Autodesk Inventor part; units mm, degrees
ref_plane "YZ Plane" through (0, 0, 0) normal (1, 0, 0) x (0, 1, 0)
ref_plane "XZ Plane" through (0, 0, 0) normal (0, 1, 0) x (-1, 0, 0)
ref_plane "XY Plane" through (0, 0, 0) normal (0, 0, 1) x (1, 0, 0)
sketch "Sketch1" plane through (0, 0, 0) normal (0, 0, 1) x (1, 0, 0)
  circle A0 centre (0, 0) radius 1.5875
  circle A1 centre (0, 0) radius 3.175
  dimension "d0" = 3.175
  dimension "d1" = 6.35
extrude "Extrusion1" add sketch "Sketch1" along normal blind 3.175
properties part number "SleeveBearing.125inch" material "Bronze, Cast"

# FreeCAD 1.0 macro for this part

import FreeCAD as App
import Part
import Sketcher
Q = App.Units.Quantity

doc = App.newDocument("Part")
body = doc.addObject("PartDesign::Body", "Body")

# Sketch on XY plane
sketch1 = doc.addObject("Sketcher::SketchObject", "Sketch")
body.addObject(sketch1)
sketch1.AttachmentSupport = (doc.XY_Plane, [""])
sketch1.MapMode = "FlatFace"
sketch1.addGeometry([
    Part.Circle(App.Vector(0, 0, 0), App.Vector(0, 0, 1), 3.175),
    Part.Circle(App.Vector(0, 0, 0), App.Vector(0, 0, 1), 1.5875),
], False)
sketch1.addConstraint([
    Sketcher.Constraint("Coincident", 0, 3, -1, 1),
    Sketcher.Constraint("Coincident", 1, 3, -1, 1),
    Sketcher.Constraint("Diameter", 0, Q("0.25 in")),
    Sketcher.Constraint("Diameter", 1, Q("0.125 in")),
])
pad1 = doc.addObject("PartDesign::Pad", "Pad")
body.addObject(pad1)
pad1.Profile = sketch1
pad1.Length = Q("0.125 in")

doc.recompute()
